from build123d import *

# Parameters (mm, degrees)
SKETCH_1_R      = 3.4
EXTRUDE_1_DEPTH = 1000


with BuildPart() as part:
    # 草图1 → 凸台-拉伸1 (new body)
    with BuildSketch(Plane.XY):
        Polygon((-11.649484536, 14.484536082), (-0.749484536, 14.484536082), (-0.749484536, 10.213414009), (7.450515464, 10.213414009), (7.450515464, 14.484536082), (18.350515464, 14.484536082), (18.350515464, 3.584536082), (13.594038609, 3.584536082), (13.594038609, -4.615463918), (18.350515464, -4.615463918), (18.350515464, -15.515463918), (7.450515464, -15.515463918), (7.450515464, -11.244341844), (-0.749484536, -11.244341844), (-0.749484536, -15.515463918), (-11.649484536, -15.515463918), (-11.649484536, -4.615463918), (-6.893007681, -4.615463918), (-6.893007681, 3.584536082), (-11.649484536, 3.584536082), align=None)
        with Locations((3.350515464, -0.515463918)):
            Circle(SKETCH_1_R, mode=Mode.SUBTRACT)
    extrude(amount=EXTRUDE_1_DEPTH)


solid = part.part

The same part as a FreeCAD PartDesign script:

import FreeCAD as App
import Part
import Sketcher

doc = App.newDocument("Part")
params = doc.addObject("Spreadsheet::Sheet", "Params")
for row, (alias, value) in enumerate([
    ("sketch1_diameter", "6.8 mm"),
    ("sketch1_width", "10.9 mm"),
    ("sketch1_width2", "8.2 mm"),
    ("pad1_length", "1000 mm"),
], start=1):
    params.set(f"A{row}", alias)
    params.set(f"B{row}", "=" + value)
    params.setAlias(f"B{row}", alias)

body = doc.addObject("PartDesign::Body", "Body")

sketch1 = body.newObject("Sketcher::SketchObject", "Sketch")
sketch1.AttachmentSupport = (doc.getObject("XY_Plane"), [""])
sketch1.MapMode = "FlatFace"
sketch1.addGeometry([
    Part.LineSegment(App.Vector(-0.7, 14.5, 0), App.Vector(-11.6, 14.5, 0)),
    Part.LineSegment(App.Vector(-11.6, 14.5, 0), App.Vector(-11.6, 3.6, 0)),
    Part.LineSegment(App.Vector(-11.6, 3.6, 0), App.Vector(-6.9, 3.6, 0)),
    Part.LineSegment(App.Vector(-6.9, 3.6, 0), App.Vector(-6.9, -4.6, 0)),
    Part.LineSegment(App.Vector(-6.9, -4.6, 0), App.Vector(-11.6, -4.6, 0)),
    Part.LineSegment(App.Vector(-11.6, -4.6, 0), App.Vector(-11.6, -15.5, 0)),
    Part.LineSegment(App.Vector(-11.6, -15.5, 0), App.Vector(-0.7, -15.5, 0)),
    Part.LineSegment(App.Vector(-0.7, -15.5, 0), App.Vector(-0.7, -11.2, 0)),
    Part.LineSegment(App.Vector(-0.7, -11.2, 0), App.Vector(7.5, -11.2, 0)),
    Part.LineSegment(App.Vector(7.5, -11.2, 0), App.Vector(7.5, -15.5, 0)),
    Part.LineSegment(App.Vector(7.5, -15.5, 0), App.Vector(18.4, -15.5, 0)),
    Part.LineSegment(App.Vector(18.4, -15.5, 0), App.Vector(18.4, -4.6, 0)),
    Part.LineSegment(App.Vector(18.4, -4.6, 0), App.Vector(13.6, -4.6, 0)),
    Part.LineSegment(App.Vector(13.6, -4.6, 0), App.Vector(13.6, 3.6, 0)),
    Part.LineSegment(App.Vector(13.6, 3.6, 0), App.Vector(18.4, 3.6, 0)),
    Part.LineSegment(App.Vector(18.4, 3.6, 0), App.Vector(18.4, 14.5, 0)),
    Part.LineSegment(App.Vector(18.4, 14.5, 0), App.Vector(7.5, 14.5, 0)),
    Part.LineSegment(App.Vector(7.5, 14.5, 0), App.Vector(7.5, 10.2, 0)),
    Part.LineSegment(App.Vector(7.5, 10.2, 0), App.Vector(-0.7, 10.2, 0)),
    Part.LineSegment(App.Vector(-0.7, 10.2, 0), App.Vector(-0.7, 14.5, 0)),
    Part.Circle(App.Vector(3.4, -0.5, 0), App.Vector(0, 0, 1), 3.4),
], False)
sketch1.addConstraint([
    Sketcher.Constraint("Coincident", 0, 2, 1, 1),
    Sketcher.Constraint("Coincident", 1, 2, 2, 1),
    Sketcher.Constraint("Coincident", 2, 2, 3, 1),
    Sketcher.Constraint("Coincident", 3, 2, 4, 1),
    Sketcher.Constraint("Coincident", 4, 2, 5, 1),
    Sketcher.Constraint("Coincident", 5, 2, 6, 1),
    Sketcher.Constraint("Coincident", 6, 2, 7, 1),
    Sketcher.Constraint("Coincident", 7, 2, 8, 1),
    Sketcher.Constraint("Coincident", 8, 2, 9, 1),
    Sketcher.Constraint("Coincident", 9, 2, 10, 1),
    Sketcher.Constraint("Coincident", 10, 2, 11, 1),
    Sketcher.Constraint("Coincident", 11, 2, 12, 1),
    Sketcher.Constraint("Coincident", 12, 2, 13, 1),
    Sketcher.Constraint("Coincident", 13, 2, 14, 1),
    Sketcher.Constraint("Coincident", 14, 2, 15, 1),
    Sketcher.Constraint("Coincident", 15, 2, 16, 1),
    Sketcher.Constraint("Coincident", 16, 2, 17, 1),
    Sketcher.Constraint("Coincident", 17, 2, 18, 1),
    Sketcher.Constraint("Coincident", 18, 2, 19, 1),
    Sketcher.Constraint("Coincident", 19, 2, 0, 1),
    Sketcher.Constraint("Horizontal", 0),
    Sketcher.Constraint("Vertical", 1),
    Sketcher.Constraint("Horizontal", 2),
    Sketcher.Constraint("Vertical", 3),
    Sketcher.Constraint("Horizontal", 4),
    Sketcher.Constraint("Vertical", 5),
    Sketcher.Constraint("Horizontal", 6),
    Sketcher.Constraint("Vertical", 7),
    Sketcher.Constraint("Horizontal", 8),
    Sketcher.Constraint("Vertical", 9),
    Sketcher.Constraint("Horizontal", 10),
    Sketcher.Constraint("Vertical", 11),
    Sketcher.Constraint("Horizontal", 12),
    Sketcher.Constraint("Vertical", 13),
    Sketcher.Constraint("Horizontal", 14),
    Sketcher.Constraint("Vertical", 15),
    Sketcher.Constraint("Horizontal", 16),
    Sketcher.Constraint("Vertical", 17),
    Sketcher.Constraint("Horizontal", 18),
    Sketcher.Constraint("Vertical", 19),
    Sketcher.Constraint("Horizontal", 6, 2, 9, 2),
    Sketcher.Constraint("Horizontal", 4, 2, 11, 2),
    Sketcher.Constraint("Horizontal", 2, 2, 13, 2),
    Sketcher.Constraint("Horizontal", 0, 2, 15, 2),
    Sketcher.Constraint("Vertical", 1, 2, 4, 2),
    Sketcher.Constraint("Vertical", 11, 2, 14, 2),
    Sketcher.Constraint("Vertical", 9, 2, 16, 2),
    Sketcher.Constraint("Vertical", 7, 2, 18, 2),
    Sketcher.Constraint("Equal", 6, 10),
    Sketcher.Constraint("Equal", 4, 12),
    Sketcher.Constraint("Equal", 16, 1),
    Sketcher.Constraint("Equal", 18, 3),
    Sketcher.Constraint("Equal", 1, 5),
    Sketcher.Constraint("Equal", 9, 17),
    Sketcher.Constraint("Diameter", 20, 6.8),
    Sketcher.Constraint("DistanceX", 0, 2, 0, 1, 10.9),
    Sketcher.Constraint("DistanceX", 8, 1, 8, 2, 8.2),
    Sketcher.Constraint("DistanceX", 0, 2, 20, 3, 15.0),
    Sketcher.Constraint("DistanceY", 20, 3, 0, 2, 15.0),
    Sketcher.Constraint("DistanceX", 2, 1, 2, 2, 4.756477),
    Sketcher.Constraint("DistanceY", 7, 1, 7, 2, 4.271122),
    Sketcher.Constraint("DistanceY", 7, 2, -1, 1, 11.244342),
    Sketcher.Constraint("DistanceX", -1, 1, 12, 2, 13.594039),
])
sketch1.setExpression("Constraints[54]", "Params.sketch1_diameter")
sketch1.setExpression("Constraints[55]", "Params.sketch1_width")
sketch1.setExpression("Constraints[56]", "Params.sketch1_width2")
pad1 = body.newObject("PartDesign::Pad", "Pad")
pad1.Profile = sketch1
pad1.setExpression("Length", "Params.pad1_length")

doc.recompute()
